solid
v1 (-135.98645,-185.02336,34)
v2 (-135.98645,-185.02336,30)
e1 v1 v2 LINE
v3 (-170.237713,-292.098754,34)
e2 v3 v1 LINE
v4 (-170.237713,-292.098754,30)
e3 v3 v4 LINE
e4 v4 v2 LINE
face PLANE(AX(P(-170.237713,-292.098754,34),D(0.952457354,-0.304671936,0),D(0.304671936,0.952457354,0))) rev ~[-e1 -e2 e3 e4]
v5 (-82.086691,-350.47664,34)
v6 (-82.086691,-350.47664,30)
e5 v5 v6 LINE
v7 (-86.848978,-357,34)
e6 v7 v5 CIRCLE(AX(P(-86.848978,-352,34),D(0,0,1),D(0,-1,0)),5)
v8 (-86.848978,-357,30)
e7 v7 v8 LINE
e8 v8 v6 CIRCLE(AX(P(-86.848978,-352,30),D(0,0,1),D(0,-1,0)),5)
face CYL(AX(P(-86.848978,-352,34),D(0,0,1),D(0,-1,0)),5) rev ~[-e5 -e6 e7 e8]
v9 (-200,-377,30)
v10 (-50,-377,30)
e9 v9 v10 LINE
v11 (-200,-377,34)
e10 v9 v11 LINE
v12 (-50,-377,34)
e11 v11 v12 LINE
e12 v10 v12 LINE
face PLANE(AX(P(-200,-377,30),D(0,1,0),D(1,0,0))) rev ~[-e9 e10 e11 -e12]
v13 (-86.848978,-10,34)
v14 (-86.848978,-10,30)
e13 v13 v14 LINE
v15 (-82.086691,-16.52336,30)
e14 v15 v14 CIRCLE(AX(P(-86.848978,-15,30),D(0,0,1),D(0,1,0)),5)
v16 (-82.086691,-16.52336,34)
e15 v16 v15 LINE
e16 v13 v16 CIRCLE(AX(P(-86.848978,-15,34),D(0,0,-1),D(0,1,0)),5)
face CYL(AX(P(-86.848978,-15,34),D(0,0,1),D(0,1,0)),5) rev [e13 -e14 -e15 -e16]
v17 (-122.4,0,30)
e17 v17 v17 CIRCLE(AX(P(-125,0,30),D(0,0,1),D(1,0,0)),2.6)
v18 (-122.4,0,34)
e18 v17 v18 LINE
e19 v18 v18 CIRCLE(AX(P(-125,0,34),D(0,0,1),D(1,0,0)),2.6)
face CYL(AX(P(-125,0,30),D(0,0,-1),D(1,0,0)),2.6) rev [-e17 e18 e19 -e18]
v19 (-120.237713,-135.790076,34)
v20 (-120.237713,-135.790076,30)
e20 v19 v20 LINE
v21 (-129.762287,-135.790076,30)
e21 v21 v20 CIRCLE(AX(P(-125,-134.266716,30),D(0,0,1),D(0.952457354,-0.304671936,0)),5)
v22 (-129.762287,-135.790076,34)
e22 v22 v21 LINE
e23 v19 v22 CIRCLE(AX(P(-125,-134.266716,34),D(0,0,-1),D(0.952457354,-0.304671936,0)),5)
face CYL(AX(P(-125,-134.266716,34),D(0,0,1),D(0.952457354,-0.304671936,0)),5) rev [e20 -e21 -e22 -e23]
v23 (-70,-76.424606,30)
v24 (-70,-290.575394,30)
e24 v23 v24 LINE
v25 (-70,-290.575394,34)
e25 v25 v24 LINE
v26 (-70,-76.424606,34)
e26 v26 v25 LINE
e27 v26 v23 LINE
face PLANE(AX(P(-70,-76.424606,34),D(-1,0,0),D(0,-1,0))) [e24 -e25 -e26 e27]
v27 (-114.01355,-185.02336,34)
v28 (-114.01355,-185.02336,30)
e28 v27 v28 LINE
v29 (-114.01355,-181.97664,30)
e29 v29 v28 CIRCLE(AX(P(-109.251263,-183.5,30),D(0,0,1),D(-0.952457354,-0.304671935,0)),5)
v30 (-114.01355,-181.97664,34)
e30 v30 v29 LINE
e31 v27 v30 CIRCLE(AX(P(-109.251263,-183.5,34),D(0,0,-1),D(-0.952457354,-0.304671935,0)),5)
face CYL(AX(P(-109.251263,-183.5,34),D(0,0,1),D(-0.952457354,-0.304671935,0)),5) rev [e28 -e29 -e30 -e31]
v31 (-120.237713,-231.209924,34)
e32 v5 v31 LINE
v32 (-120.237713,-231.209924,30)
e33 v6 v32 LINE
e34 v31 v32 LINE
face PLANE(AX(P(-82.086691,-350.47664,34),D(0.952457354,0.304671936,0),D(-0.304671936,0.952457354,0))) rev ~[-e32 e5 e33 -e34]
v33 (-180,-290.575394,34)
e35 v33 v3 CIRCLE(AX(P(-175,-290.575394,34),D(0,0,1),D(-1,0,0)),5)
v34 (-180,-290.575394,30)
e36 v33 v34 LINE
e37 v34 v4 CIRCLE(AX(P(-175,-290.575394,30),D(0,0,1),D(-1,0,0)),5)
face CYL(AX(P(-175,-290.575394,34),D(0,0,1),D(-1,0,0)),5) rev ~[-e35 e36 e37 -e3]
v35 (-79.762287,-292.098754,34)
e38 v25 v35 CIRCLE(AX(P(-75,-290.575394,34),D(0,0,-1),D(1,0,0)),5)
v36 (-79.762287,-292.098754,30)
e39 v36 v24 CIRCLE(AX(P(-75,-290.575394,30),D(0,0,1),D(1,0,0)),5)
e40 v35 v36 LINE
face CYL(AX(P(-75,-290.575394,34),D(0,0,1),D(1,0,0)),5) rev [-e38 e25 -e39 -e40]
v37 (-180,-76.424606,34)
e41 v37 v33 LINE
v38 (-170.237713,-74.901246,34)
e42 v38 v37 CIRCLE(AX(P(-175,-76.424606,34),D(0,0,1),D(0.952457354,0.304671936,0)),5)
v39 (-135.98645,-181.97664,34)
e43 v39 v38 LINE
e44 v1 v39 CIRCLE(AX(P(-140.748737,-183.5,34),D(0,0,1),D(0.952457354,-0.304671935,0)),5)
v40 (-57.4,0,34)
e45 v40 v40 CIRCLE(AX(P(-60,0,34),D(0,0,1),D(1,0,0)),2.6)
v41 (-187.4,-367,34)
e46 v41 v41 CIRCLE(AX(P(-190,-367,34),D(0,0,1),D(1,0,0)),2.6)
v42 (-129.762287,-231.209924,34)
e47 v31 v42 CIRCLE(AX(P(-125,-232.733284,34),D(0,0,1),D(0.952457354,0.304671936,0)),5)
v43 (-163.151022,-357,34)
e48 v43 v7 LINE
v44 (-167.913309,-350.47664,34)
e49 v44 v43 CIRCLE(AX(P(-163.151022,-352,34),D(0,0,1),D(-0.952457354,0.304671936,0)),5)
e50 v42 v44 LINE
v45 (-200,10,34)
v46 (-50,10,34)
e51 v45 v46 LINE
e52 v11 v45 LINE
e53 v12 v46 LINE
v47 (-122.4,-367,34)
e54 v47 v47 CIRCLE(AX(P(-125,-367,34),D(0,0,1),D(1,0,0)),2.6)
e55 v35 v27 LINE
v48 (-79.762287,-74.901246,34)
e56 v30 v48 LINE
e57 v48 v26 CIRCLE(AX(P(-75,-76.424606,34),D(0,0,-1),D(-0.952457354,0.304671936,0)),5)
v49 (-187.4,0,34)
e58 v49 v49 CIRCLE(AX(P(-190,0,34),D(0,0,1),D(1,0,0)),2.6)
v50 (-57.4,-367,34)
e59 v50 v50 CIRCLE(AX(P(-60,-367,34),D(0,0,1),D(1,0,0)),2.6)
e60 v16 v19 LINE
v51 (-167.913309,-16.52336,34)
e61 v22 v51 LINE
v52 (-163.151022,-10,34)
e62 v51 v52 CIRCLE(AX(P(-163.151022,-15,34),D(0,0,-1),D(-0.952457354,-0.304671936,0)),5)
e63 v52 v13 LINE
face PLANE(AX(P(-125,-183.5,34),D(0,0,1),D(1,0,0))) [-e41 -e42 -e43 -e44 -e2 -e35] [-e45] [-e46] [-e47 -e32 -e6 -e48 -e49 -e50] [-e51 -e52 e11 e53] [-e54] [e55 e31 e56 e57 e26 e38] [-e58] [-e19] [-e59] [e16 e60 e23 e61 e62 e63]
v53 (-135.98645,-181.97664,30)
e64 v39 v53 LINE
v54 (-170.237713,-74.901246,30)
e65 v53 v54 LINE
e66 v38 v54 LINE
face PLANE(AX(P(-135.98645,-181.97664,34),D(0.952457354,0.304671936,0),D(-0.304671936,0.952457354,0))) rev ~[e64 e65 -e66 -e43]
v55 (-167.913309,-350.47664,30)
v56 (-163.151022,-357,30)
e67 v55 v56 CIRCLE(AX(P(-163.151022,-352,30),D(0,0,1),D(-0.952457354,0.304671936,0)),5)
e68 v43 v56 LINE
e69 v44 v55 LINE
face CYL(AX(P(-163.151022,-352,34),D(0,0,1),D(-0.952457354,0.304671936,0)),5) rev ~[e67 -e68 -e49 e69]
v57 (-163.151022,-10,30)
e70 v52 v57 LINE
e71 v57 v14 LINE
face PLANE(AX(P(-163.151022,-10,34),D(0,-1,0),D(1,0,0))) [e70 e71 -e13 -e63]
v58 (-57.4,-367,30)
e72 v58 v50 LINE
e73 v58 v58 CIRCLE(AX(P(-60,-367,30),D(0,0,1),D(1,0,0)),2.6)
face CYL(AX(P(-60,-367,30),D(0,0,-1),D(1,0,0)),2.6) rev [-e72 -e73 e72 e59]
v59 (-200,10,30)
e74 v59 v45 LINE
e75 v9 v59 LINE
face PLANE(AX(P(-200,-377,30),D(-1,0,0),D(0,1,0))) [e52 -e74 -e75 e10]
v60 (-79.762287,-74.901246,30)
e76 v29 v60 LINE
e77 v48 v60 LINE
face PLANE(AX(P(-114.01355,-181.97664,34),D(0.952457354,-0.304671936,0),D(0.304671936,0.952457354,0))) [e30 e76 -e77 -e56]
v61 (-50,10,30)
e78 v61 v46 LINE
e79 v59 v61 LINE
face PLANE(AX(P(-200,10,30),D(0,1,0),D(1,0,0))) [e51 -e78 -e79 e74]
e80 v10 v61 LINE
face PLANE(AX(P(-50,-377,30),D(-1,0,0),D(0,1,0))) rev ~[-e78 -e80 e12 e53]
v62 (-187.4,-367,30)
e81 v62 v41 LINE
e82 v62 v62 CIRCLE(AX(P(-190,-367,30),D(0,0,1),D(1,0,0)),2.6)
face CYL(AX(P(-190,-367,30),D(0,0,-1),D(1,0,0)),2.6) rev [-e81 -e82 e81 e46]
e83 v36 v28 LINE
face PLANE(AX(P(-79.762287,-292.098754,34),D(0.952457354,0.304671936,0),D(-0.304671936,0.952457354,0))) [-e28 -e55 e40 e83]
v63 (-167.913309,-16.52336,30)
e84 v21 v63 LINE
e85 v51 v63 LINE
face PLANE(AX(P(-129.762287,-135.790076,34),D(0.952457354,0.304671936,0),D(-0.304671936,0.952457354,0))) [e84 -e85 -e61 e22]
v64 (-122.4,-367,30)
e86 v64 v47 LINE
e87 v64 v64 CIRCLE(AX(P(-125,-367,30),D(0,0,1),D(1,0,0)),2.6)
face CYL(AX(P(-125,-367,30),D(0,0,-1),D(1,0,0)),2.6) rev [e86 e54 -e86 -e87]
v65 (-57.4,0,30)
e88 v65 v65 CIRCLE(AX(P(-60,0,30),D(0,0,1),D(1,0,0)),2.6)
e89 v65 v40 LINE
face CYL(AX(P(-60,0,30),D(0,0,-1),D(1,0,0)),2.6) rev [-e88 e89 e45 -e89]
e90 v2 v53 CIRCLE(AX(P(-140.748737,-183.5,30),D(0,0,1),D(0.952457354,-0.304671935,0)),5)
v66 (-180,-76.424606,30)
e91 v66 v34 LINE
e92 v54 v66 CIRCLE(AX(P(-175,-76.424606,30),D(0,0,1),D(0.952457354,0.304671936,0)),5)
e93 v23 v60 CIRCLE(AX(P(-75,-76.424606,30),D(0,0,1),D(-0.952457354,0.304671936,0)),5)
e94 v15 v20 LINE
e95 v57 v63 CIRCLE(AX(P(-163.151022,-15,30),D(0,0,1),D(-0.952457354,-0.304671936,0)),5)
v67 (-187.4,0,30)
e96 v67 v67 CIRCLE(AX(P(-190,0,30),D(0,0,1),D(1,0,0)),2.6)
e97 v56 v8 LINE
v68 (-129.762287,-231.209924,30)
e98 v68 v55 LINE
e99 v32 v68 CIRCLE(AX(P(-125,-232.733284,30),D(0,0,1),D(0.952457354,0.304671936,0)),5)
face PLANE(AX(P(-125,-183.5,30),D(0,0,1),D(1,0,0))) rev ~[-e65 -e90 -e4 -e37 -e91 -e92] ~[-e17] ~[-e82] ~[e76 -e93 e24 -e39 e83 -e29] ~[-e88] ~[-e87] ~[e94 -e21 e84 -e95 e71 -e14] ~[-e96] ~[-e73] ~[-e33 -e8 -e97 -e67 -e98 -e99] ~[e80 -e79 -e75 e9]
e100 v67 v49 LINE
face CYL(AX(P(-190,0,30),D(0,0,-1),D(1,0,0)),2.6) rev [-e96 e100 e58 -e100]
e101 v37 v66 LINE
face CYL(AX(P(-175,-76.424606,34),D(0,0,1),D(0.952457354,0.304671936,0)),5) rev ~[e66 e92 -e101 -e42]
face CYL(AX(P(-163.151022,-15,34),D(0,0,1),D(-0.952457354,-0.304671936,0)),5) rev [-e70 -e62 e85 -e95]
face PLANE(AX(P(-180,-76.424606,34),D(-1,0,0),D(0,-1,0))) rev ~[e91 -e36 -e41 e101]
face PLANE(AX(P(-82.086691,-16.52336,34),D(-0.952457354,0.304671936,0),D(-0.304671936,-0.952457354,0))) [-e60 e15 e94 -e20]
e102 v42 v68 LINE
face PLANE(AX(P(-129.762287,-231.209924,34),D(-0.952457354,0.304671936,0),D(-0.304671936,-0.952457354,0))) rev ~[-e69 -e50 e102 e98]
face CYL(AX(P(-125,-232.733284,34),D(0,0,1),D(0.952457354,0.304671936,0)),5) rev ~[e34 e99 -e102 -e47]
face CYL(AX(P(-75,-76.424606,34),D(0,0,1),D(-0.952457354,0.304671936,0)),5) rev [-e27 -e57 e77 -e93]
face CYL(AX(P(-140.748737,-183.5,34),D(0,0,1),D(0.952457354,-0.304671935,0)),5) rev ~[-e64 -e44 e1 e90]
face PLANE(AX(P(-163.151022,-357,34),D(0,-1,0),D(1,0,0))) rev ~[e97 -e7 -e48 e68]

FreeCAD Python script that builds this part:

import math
import FreeCAD as App
import Part
import Sketcher

V = App.Vector
Q = App.Units.Quantity


def add_polygon(sketch, points):
    """Adds a closed chain of lines whose ends are joined by coincident constraints."""
    first, n = sketch.GeometryCount, len(points)
    for a, b in zip(points, points[1:] + points[:1]):
        sketch.addGeometry(Part.LineSegment(App.Vector(*a, 0), App.Vector(*b, 0)), False)
    for i in range(n):
        sketch.addConstraint(Sketcher.Constraint("Coincident", first + i, 2, first + (i + 1) % n, 1))

doc = App.newDocument("Part")
body = doc.addObject("PartDesign::Body", "Body")

sketch1 = body.newObject("Sketcher::SketchObject", "Sketch")
sketch1.AttachmentSupport = (doc.getObject("XY_Plane"), [""])
sketch1.MapMode = "FlatFace"
sketch1.AttachmentOffset = App.Placement(V(0, 0, 30), App.Rotation())
add_polygon(sketch1, [(-200, 10), (-200, -377), (-50, -377), (-50, 10)])
sketch1.addGeometry(Part.Circle(V(-190, -367, 0), V(0, 0, 1), 2.6), False)
sketch1.addGeometry(Part.Circle(V(-125, -367, 0), V(0, 0, 1), 2.6), False)
sketch1.addGeometry(Part.Circle(V(-60, -367, 0), V(0, 0, 1), 2.6), False)
sketch1.addGeometry(Part.Circle(V(-190, 0, 0), V(0, 0, 1), 2.6), False)
sketch1.addGeometry(Part.Circle(V(-125, 0, 0), V(0, 0, 1), 2.6), False)
sketch1.addGeometry(Part.Circle(V(-60, 0, 0), V(0, 0, 1), 2.6), False)
sketch1.addConstraint([
    Sketcher.Constraint("Vertical", 0),
    Sketcher.Constraint("Horizontal", 1),
    Sketcher.Constraint("Vertical", 2),
    Sketcher.Constraint("Horizontal", 3),
    Sketcher.Constraint("Equal", 4, 5),
    Sketcher.Constraint("Equal", 5, 6),
    Sketcher.Constraint("Equal", 6, 7),
    Sketcher.Constraint("Equal", 7, 8),
    Sketcher.Constraint("Equal", 8, 9),
    Sketcher.Constraint("PointOnObject", 7, 3, -1),
    Sketcher.Constraint("PointOnObject", 8, 3, -1),
    Sketcher.Constraint("PointOnObject", 9, 3, -1),
    Sketcher.Constraint("Horizontal", 4, 3, 5, 3),
    Sketcher.Constraint("Horizontal", 5, 3, 6, 3),
    Sketcher.Constraint("Vertical", 4, 3, 7, 3),
    Sketcher.Constraint("Vertical", 5, 3, 8, 3),
    Sketcher.Constraint("Vertical", 6, 3, 9, 3),
    Sketcher.Constraint("Diameter", 4, Q("5.2 mm")),
    Sketcher.Constraint("DistanceX", 1, 1, 1, 2, Q("150 mm")),
    Sketcher.Constraint("DistanceY", 0, 2, 0, 1, Q("387 mm")),
    Sketcher.Constraint("DistanceX", 4, 3, -1, 1, Q("190 mm")),
    Sketcher.Constraint("DistanceY", 4, 3, -1, 1, Q("367 mm")),
    Sketcher.Constraint("DistanceX", 5, 3, -1, 1, Q("125 mm")),
    Sketcher.Constraint("DistanceX", 6, 3, -1, 1, Q("60 mm")),
    Sketcher.Constraint("DistanceX", 0, 2, -1, 1, Q("200 mm")),
    Sketcher.Constraint("DistanceY", 0, 2, -1, 1, Q("377 mm")),
])
pad1 = body.newObject("PartDesign::Pad", "Pad")
pad1.Profile = sketch1
pad1.Length = 4

sketch2 = body.newObject("Sketcher::SketchObject", "Sketch001")
sketch2.AttachmentSupport = (doc.getObject("XY_Plane"), [""])
sketch2.MapMode = "FlatFace"
sketch2.AttachmentOffset = App.Placement(V(0, 0, 34), App.Rotation())
sketch2.addGeometry([
    Part.LineSegment(V(-86.8, -10, 0), V(-163.2, -10, 0)),
    Part.ArcOfCircle(Part.Circle(V(-163.2, -15, 0), V(0, 0, 1), 5), math.radians(90), math.radians(198)),
    Part.LineSegment(V(-167.9, -16.5, 0), V(-129.8, -135.8, 0)),
    Part.ArcOfCircle(Part.Circle(V(-125, -134.3, 0), V(0, 0, 1), 5), math.radians(-162), math.radians(-18)),
    Part.LineSegment(V(-120.2, -135.8, 0), V(-82.1, -16.5, 0)),
    Part.ArcOfCircle(Part.Circle(V(-86.8, -15, 0), V(0, 0, 1), 5), math.radians(-18), math.radians(90)),
    Part.LineSegment(V(-180, -76.4, 0), V(-180, -290.6, 0)),
    Part.ArcOfCircle(Part.Circle(V(-175, -290.6, 0), V(0, 0, 1), 5), math.radians(180), math.radians(342)),
    Part.LineSegment(V(-170.2, -292.1, 0), V(-136, -185, 0)),
    Part.ArcOfCircle(Part.Circle(V(-140.7, -183.5, 0), V(0, 0, 1), 5), math.radians(-18), math.radians(18)),
    Part.LineSegment(V(-136, -182, 0), V(-170.2, -74.9, 0)),
    Part.ArcOfCircle(Part.Circle(V(-175, -76.4, 0), V(0, 0, 1), 5), math.radians(18), math.radians(180)),
    Part.LineSegment(V(-163.2, -357, 0), V(-86.8, -357, 0)),
    Part.ArcOfCircle(Part.Circle(V(-86.8, -352, 0), V(0, 0, 1), 5), math.radians(-90), math.radians(18)),
    Part.LineSegment(V(-82.1, -350.5, 0), V(-120.2, -231.2, 0)),
    Part.ArcOfCircle(Part.Circle(V(-125, -232.7, 0), V(0, 0, 1), 5), math.radians(18), math.radians(162)),
    Part.LineSegment(V(-129.8, -231.2, 0), V(-167.9, -350.5, 0)),
    Part.ArcOfCircle(Part.Circle(V(-163.2, -352, 0), V(0, 0, 1), 5), math.radians(162), math.radians(270)),
    Part.LineSegment(V(-70, -290.6, 0), V(-70, -76.4, 0)),
    Part.ArcOfCircle(Part.Circle(V(-75, -76.4, 0), V(0, 0, 1), 5), math.radians(0), math.radians(162)),
    Part.LineSegment(V(-79.8, -74.9, 0), V(-114, -182, 0)),
    Part.ArcOfCircle(Part.Circle(V(-109.3, -183.5, 0), V(0, 0, 1), 5), math.radians(162), math.radians(198)),
    Part.LineSegment(V(-114, -185, 0), V(-79.8, -292.1, 0)),
    Part.ArcOfCircle(Part.Circle(V(-75, -290.6, 0), V(0, 0, 1), 5), math.radians(-162), math.radians(0)),
], False)
sketch2.addConstraint([
    Sketcher.Constraint("Tangent", 0, 2, 1, 1),
    Sketcher.Constraint("Tangent", 1, 2, 2, 1),
    Sketcher.Constraint("Tangent", 2, 2, 3, 1),
    Sketcher.Constraint("Tangent", 3, 2, 4, 1),
    Sketcher.Constraint("Tangent", 4, 2, 5, 1),
    Sketcher.Constraint("Tangent", 5, 2, 0, 1),
    Sketcher.Constraint("Tangent", 6, 2, 7, 1),
    Sketcher.Constraint("Tangent", 7, 2, 8, 1),
    Sketcher.Constraint("Tangent", 8, 2, 9, 1),
    Sketcher.Constraint("Tangent", 9, 2, 10, 1),
    Sketcher.Constraint("Tangent", 10, 2, 11, 1),
    Sketcher.Constraint("Tangent", 11, 2, 6, 1),
    Sketcher.Constraint("Tangent", 12, 2, 13, 1),
    Sketcher.Constraint("Tangent", 13, 2, 14, 1),
    Sketcher.Constraint("Tangent", 14, 2, 15, 1),
    Sketcher.Constraint("Tangent", 15, 2, 16, 1),
    Sketcher.Constraint("Tangent", 16, 2, 17, 1),
    Sketcher.Constraint("Tangent", 17, 2, 12, 1),
    Sketcher.Constraint("Tangent", 18, 2, 19, 1),
    Sketcher.Constraint("Tangent", 19, 2, 20, 1),
    Sketcher.Constraint("Tangent", 20, 2, 21, 1),
    Sketcher.Constraint("Tangent", 21, 2, 22, 1),
    Sketcher.Constraint("Tangent", 22, 2, 23, 1),
    Sketcher.Constraint("Tangent", 23, 2, 18, 1),
    Sketcher.Constraint("Horizontal", 0),
    Sketcher.Constraint("Vertical", 6),
    Sketcher.Constraint("Horizontal", 12),
    Sketcher.Constraint("Vertical", 18),
    Sketcher.Constraint("Equal", 1, 3),
    Sketcher.Constraint("Equal", 3, 5),
    Sketcher.Constraint("Equal", 5, 7),
    Sketcher.Constraint("Equal", 7, 9),
    Sketcher.Constraint("Equal", 9, 11),
    Sketcher.Constraint("Equal", 11, 13),
    Sketcher.Constraint("Equal", 13, 15),
    Sketcher.Constraint("Equal", 15, 17),
    Sketcher.Constraint("Equal", 17, 19),
    Sketcher.Constraint("Equal", 19, 21),
    Sketcher.Constraint("Equal", 21, 23),
    Sketcher.Constraint("Parallel", 4, 8),
    Sketcher.Constraint("Parallel", 2, 10),
    Sketcher.Constraint("Parallel", 10, 14),
    Sketcher.Constraint("Parallel", 8, 16),
    Sketcher.Constraint("Parallel", 16, 20),
    Sketcher.Constraint("Parallel", 14, 22),
    Sketcher.Constraint("Horizontal", 11, 3, 19, 3),
    Sketcher.Constraint("Horizontal", 9, 3, 21, 3),
    Sketcher.Constraint("Horizontal", 7, 3, 23, 3),
    Sketcher.Constraint("Vertical", 5, 3, 13, 3),
    Sketcher.Constraint("Vertical", 3, 3, 15, 3),
    Sketcher.Constraint("Radius", 1, Q("5 mm")),
    Sketcher.Constraint("DistanceY", 1, 3, -1, 1, Q("15 mm")),
    Sketcher.Constraint("DistanceX", 3, 3, -1, 1, Q("125 mm")),
    Sketcher.Constraint("DistanceX", 7, 3, -1, 1, Q("175 mm")),
    Sketcher.Constraint("DistanceY", 13, 3, -1, 1, Q("352 mm")),
    Sketcher.Constraint("DistanceX", 19, 3, -1, 1, Q("75 mm")),
    Sketcher.Constraint("DistanceY", 9, 3, -1, 1, Q("183.5 mm")),
    Sketcher.Constraint("DistanceY", 6, 2, 6, 1, Q("214.150789 mm")),
    Sketcher.Constraint("DistanceX", 9, 2, 20, 2, Q("21.9729 mm")),
    Sketcher.Constraint("DistanceX", 0, 2, 0, 1, Q("76.302044 mm")),
])
pocket1 = body.newObject("PartDesign::Pocket", "Pocket")
pocket1.Profile = sketch2
pocket1.Length = 10

doc.recompute()
